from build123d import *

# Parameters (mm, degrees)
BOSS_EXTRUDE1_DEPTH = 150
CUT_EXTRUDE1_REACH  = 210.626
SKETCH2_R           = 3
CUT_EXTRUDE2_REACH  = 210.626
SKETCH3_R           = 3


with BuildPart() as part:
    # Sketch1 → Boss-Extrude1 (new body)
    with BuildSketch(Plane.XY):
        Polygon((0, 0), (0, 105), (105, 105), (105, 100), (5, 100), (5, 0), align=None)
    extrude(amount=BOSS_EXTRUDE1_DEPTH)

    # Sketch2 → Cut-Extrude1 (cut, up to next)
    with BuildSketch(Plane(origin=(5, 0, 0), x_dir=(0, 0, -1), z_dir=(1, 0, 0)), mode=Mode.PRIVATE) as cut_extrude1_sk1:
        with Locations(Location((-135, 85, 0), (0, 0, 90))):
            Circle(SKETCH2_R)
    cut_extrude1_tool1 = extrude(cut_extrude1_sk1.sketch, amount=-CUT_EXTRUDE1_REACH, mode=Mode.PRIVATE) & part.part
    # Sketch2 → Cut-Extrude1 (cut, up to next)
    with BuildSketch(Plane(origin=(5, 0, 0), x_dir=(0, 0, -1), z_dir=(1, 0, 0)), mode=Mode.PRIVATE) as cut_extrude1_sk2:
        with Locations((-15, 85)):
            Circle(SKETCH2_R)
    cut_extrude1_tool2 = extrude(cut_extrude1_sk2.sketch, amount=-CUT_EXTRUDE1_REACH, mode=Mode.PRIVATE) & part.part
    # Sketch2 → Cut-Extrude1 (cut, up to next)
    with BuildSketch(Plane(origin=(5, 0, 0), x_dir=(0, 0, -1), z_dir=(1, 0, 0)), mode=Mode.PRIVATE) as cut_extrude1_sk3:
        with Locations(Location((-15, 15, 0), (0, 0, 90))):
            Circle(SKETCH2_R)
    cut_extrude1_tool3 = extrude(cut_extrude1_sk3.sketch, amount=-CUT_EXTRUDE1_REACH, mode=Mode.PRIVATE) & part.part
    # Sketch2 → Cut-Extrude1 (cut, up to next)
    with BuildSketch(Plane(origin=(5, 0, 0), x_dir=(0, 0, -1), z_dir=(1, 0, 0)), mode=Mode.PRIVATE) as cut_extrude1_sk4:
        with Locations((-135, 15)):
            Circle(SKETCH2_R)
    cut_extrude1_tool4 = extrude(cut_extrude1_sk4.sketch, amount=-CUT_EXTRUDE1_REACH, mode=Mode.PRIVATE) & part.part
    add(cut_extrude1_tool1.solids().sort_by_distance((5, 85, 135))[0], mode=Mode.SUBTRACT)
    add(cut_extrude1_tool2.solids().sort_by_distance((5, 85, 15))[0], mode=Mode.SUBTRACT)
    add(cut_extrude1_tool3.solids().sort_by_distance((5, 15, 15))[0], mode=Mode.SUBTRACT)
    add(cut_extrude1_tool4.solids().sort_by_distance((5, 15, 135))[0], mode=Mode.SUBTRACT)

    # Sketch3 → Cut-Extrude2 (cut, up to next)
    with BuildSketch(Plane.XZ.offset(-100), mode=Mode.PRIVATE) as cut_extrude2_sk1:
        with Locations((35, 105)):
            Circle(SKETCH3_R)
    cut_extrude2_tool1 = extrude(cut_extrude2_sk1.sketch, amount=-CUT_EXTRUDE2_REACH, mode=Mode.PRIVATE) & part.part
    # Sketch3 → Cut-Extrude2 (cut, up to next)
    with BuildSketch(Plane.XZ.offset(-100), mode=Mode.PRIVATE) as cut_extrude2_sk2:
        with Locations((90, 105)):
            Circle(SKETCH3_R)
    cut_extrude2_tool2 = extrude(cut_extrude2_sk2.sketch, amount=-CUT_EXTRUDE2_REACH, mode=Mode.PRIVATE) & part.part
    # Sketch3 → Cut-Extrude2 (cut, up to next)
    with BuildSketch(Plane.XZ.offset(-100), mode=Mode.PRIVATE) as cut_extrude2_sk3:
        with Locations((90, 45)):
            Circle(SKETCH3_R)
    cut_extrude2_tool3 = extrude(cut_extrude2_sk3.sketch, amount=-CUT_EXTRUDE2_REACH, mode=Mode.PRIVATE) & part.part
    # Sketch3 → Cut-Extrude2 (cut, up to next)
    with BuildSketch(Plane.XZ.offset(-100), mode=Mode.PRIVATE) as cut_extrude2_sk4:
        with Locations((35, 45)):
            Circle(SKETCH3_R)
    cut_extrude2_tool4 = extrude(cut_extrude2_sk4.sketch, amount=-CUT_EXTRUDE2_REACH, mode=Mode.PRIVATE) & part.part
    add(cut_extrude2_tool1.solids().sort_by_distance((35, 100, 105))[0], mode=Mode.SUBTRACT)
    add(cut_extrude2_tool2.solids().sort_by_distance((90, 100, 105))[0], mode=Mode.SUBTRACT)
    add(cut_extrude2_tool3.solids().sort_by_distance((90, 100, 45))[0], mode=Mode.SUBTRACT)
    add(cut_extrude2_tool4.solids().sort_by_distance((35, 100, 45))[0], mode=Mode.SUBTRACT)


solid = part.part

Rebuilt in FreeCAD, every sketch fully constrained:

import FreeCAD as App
import Part
import Sketcher
from FreeCAD import Vector

doc = App.newDocument("Part")
body = doc.addObject("PartDesign::Body", "Body")

# Sketch on XY plane
sketch1 = body.newObject("Sketcher::SketchObject", "Sketch")
sketch1.AttachmentSupport = (doc.getObject("XY_Plane"), [""])
sketch1.MapMode = "FlatFace"
sketch1.addGeometry(Part.LineSegment(Vector(0, 105, 0), Vector(0, 0, 0)), False)
sketch1.addGeometry(Part.LineSegment(Vector(0, 0, 0), Vector(5, 0, 0)), False)
sketch1.addGeometry(Part.LineSegment(Vector(5, 0, 0), Vector(5, 100, 0)), False)
sketch1.addGeometry(Part.LineSegment(Vector(5, 100, 0), Vector(105, 100, 0)), False)
sketch1.addGeometry(Part.LineSegment(Vector(105, 100, 0), Vector(105, 105, 0)), False)
sketch1.addGeometry(Part.LineSegment(Vector(105, 105, 0), Vector(0, 105, 0)), False)
sketch1.addConstraint(Sketcher.Constraint("Coincident", 0, 2, 1, 1))
sketch1.addConstraint(Sketcher.Constraint("Coincident", 1, 2, 2, 1))
sketch1.addConstraint(Sketcher.Constraint("Coincident", 2, 2, 3, 1))
sketch1.addConstraint(Sketcher.Constraint("Coincident", 3, 2, 4, 1))
sketch1.addConstraint(Sketcher.Constraint("Coincident", 4, 2, 5, 1))
sketch1.addConstraint(Sketcher.Constraint("Coincident", 5, 2, 0, 1))
sketch1.addConstraint(Sketcher.Constraint("Vertical", 0))
sketch1.addConstraint(Sketcher.Constraint("Horizontal", 1))
sketch1.addConstraint(Sketcher.Constraint("Vertical", 2))
sketch1.addConstraint(Sketcher.Constraint("Horizontal", 3))
sketch1.addConstraint(Sketcher.Constraint("Vertical", 4))
sketch1.addConstraint(Sketcher.Constraint("Horizontal", 5))
sketch1.addConstraint(Sketcher.Constraint("Coincident", 0, 2, -1, 1))
sketch1.addConstraint(Sketcher.Constraint("Equal", 5, 0))
sketch1.addConstraint(Sketcher.Constraint("Equal", 3, 2))
sketch1.addConstraint(Sketcher.Constraint("DistanceX", 1, 1, 1, 2, 5.0))
sketch1.addConstraint(Sketcher.Constraint("DistanceX", 3, 1, 3, 2, 100.0))
pad1 = body.newObject("PartDesign::Pad", "Pad")
pad1.Profile = sketch1
pad1.Length = 150

# Sketch on YZ plane
sketch2 = body.newObject("Sketcher::SketchObject", "Sketch001")
sketch2.AttachmentSupport = (doc.getObject("YZ_Plane"), [""])
sketch2.MapMode = "FlatFace"
sketch2.AttachmentOffset = App.Placement(Vector(0, 0, 5), App.Rotation())
sketch2.addGeometry(Part.Circle(Vector(85, 135, 0), Vector(0, 0, 1), 3), False)
sketch2.addConstraint(Sketcher.Constraint("Diameter", 0, 6.0))
sketch2.addConstraint(Sketcher.Constraint("DistanceX", -1, 1, 0, 3, 85.0))
sketch2.addConstraint(Sketcher.Constraint("DistanceY", -1, 1, 0, 3, 135.0))
pocket1 = body.newObject("PartDesign::Pocket", "Pocket")
pocket1.Profile = sketch2
pocket1.Type = "UpToFirst"

# Sketch on YZ plane
sketch3 = body.newObject("Sketcher::SketchObject", "Sketch002")
sketch3.AttachmentSupport = (doc.getObject("YZ_Plane"), [""])
sketch3.MapMode = "FlatFace"
sketch3.AttachmentOffset = App.Placement(Vector(0, 0, 5), App.Rotation())
sketch3.addGeometry(Part.Circle(Vector(85, 15, 0), Vector(0, 0, 1), 3), False)
sketch3.addConstraint(Sketcher.Constraint("Diameter", 0, 6.0))
sketch3.addConstraint(Sketcher.Constraint("DistanceX", -1, 1, 0, 3, 85.0))
sketch3.addConstraint(Sketcher.Constraint("DistanceY", -1, 1, 0, 3, 15.0))
pocket2 = body.newObject("PartDesign::Pocket", "Pocket001")
pocket2.Profile = sketch3
pocket2.Type = "UpToFirst"

# Sketch on YZ plane
sketch4 = body.newObject("Sketcher::SketchObject", "Sketch003")
sketch4.AttachmentSupport = (doc.getObject("YZ_Plane"), [""])
sketch4.MapMode = "FlatFace"
sketch4.AttachmentOffset = App.Placement(Vector(0, 0, 5), App.Rotation())
sketch4.addGeometry(Part.Circle(Vector(15, 15, 0), Vector(0, 0, 1), 3), False)
sketch4.addConstraint(Sketcher.Constraint("Diameter", 0, 6.0))
sketch4.addConstraint(Sketcher.Constraint("DistanceX", -1, 1, 0, 3, 15.0))
sketch4.addConstraint(Sketcher.Constraint("DistanceY", -1, 1, 0, 3, 15.0))
pocket3 = body.newObject("PartDesign::Pocket", "Pocket002")
pocket3.Profile = sketch4
pocket3.Type = "UpToFirst"

# Sketch on YZ plane
sketch5 = body.newObject("Sketcher::SketchObject", "Sketch004")
sketch5.AttachmentSupport = (doc.getObject("YZ_Plane"), [""])
sketch5.MapMode = "FlatFace"
sketch5.AttachmentOffset = App.Placement(Vector(0, 0, 5), App.Rotation())
sketch5.addGeometry(Part.Circle(Vector(15, 135, 0), Vector(0, 0, 1), 3), False)
sketch5.addConstraint(Sketcher.Constraint("Diameter", 0, 6.0))
sketch5.addConstraint(Sketcher.Constraint("DistanceX", -1, 1, 0, 3, 15.0))
sketch5.addConstraint(Sketcher.Constraint("DistanceY", -1, 1, 0, 3, 135.0))
pocket4 = body.newObject("PartDesign::Pocket", "Pocket003")
pocket4.Profile = sketch5
pocket4.Type = "UpToFirst"

# Sketch on XZ plane
sketch6 = body.newObject("Sketcher::SketchObject", "Sketch005")
sketch6.AttachmentSupport = (doc.getObject("XZ_Plane"), [""])
sketch6.MapMode = "FlatFace"
sketch6.AttachmentOffset = App.Placement(Vector(0, 0, -100), App.Rotation())
sketch6.addGeometry(Part.Circle(Vector(35, 105, 0), Vector(0, 0, 1), 3), False)
sketch6.addConstraint(Sketcher.Constraint("Diameter", 0, 6.0))
sketch6.addConstraint(Sketcher.Constraint("DistanceX", -1, 1, 0, 3, 35.0))
sketch6.addConstraint(Sketcher.Constraint("DistanceY", -1, 1, 0, 3, 105.0))
pocket5 = body.newObject("PartDesign::Pocket", "Pocket004")
pocket5.Profile = sketch6
pocket5.Type = "UpToFirst"

# Sketch on XZ plane
sketch7 = body.newObject("Sketcher::SketchObject", "Sketch006")
sketch7.AttachmentSupport = (doc.getObject("XZ_Plane"), [""])
sketch7.MapMode = "FlatFace"
sketch7.AttachmentOffset = App.Placement(Vector(0, 0, -100), App.Rotation())
sketch7.addGeometry(Part.Circle(Vector(90, 105, 0), Vector(0, 0, 1), 3), False)
sketch7.addConstraint(Sketcher.Constraint("Diameter", 0, 6.0))
sketch7.addConstraint(Sketcher.Constraint("DistanceX", -1, 1, 0, 3, 90.0))
sketch7.addConstraint(Sketcher.Constraint("DistanceY", -1, 1, 0, 3, 105.0))
pocket6 = body.newObject("PartDesign::Pocket", "Pocket005")
pocket6.Profile = sketch7
pocket6.Type = "UpToFirst"

# Sketch on XZ plane
sketch8 = body.newObject("Sketcher::SketchObject", "Sketch007")
sketch8.AttachmentSupport = (doc.getObject("XZ_Plane"), [""])
sketch8.MapMode = "FlatFace"
sketch8.AttachmentOffset = App.Placement(Vector(0, 0, -100), App.Rotation())
sketch8.addGeometry(Part.Circle(Vector(90, 45, 0), Vector(0, 0, 1), 3), False)
sketch8.addConstraint(Sketcher.Constraint("Diameter", 0, 6.0))
sketch8.addConstraint(Sketcher.Constraint("DistanceX", -1, 1, 0, 3, 90.0))
sketch8.addConstraint(Sketcher.Constraint("DistanceY", -1, 1, 0, 3, 45.0))
pocket7 = body.newObject("PartDesign::Pocket", "Pocket006")
pocket7.Profile = sketch8
pocket7.Type = "UpToFirst"

# Sketch on XZ plane
sketch9 = body.newObject("Sketcher::SketchObject", "Sketch008")
sketch9.AttachmentSupport = (doc.getObject("XZ_Plane"), [""])
sketch9.MapMode = "FlatFace"
sketch9.AttachmentOffset = App.Placement(Vector(0, 0, -100), App.Rotation())
sketch9.addGeometry(Part.Circle(Vector(35, 45, 0), Vector(0, 0, 1), 3), False)
sketch9.addConstraint(Sketcher.Constraint("Diameter", 0, 6.0))
sketch9.addConstraint(Sketcher.Constraint("DistanceX", -1, 1, 0, 3, 35.0))
sketch9.addConstraint(Sketcher.Constraint("DistanceY", -1, 1, 0, 3, 45.0))
pocket8 = body.newObject("PartDesign::Pocket", "Pocket007")
pocket8.Profile = sketch9
pocket8.Type = "UpToFirst"

doc.recompute()
